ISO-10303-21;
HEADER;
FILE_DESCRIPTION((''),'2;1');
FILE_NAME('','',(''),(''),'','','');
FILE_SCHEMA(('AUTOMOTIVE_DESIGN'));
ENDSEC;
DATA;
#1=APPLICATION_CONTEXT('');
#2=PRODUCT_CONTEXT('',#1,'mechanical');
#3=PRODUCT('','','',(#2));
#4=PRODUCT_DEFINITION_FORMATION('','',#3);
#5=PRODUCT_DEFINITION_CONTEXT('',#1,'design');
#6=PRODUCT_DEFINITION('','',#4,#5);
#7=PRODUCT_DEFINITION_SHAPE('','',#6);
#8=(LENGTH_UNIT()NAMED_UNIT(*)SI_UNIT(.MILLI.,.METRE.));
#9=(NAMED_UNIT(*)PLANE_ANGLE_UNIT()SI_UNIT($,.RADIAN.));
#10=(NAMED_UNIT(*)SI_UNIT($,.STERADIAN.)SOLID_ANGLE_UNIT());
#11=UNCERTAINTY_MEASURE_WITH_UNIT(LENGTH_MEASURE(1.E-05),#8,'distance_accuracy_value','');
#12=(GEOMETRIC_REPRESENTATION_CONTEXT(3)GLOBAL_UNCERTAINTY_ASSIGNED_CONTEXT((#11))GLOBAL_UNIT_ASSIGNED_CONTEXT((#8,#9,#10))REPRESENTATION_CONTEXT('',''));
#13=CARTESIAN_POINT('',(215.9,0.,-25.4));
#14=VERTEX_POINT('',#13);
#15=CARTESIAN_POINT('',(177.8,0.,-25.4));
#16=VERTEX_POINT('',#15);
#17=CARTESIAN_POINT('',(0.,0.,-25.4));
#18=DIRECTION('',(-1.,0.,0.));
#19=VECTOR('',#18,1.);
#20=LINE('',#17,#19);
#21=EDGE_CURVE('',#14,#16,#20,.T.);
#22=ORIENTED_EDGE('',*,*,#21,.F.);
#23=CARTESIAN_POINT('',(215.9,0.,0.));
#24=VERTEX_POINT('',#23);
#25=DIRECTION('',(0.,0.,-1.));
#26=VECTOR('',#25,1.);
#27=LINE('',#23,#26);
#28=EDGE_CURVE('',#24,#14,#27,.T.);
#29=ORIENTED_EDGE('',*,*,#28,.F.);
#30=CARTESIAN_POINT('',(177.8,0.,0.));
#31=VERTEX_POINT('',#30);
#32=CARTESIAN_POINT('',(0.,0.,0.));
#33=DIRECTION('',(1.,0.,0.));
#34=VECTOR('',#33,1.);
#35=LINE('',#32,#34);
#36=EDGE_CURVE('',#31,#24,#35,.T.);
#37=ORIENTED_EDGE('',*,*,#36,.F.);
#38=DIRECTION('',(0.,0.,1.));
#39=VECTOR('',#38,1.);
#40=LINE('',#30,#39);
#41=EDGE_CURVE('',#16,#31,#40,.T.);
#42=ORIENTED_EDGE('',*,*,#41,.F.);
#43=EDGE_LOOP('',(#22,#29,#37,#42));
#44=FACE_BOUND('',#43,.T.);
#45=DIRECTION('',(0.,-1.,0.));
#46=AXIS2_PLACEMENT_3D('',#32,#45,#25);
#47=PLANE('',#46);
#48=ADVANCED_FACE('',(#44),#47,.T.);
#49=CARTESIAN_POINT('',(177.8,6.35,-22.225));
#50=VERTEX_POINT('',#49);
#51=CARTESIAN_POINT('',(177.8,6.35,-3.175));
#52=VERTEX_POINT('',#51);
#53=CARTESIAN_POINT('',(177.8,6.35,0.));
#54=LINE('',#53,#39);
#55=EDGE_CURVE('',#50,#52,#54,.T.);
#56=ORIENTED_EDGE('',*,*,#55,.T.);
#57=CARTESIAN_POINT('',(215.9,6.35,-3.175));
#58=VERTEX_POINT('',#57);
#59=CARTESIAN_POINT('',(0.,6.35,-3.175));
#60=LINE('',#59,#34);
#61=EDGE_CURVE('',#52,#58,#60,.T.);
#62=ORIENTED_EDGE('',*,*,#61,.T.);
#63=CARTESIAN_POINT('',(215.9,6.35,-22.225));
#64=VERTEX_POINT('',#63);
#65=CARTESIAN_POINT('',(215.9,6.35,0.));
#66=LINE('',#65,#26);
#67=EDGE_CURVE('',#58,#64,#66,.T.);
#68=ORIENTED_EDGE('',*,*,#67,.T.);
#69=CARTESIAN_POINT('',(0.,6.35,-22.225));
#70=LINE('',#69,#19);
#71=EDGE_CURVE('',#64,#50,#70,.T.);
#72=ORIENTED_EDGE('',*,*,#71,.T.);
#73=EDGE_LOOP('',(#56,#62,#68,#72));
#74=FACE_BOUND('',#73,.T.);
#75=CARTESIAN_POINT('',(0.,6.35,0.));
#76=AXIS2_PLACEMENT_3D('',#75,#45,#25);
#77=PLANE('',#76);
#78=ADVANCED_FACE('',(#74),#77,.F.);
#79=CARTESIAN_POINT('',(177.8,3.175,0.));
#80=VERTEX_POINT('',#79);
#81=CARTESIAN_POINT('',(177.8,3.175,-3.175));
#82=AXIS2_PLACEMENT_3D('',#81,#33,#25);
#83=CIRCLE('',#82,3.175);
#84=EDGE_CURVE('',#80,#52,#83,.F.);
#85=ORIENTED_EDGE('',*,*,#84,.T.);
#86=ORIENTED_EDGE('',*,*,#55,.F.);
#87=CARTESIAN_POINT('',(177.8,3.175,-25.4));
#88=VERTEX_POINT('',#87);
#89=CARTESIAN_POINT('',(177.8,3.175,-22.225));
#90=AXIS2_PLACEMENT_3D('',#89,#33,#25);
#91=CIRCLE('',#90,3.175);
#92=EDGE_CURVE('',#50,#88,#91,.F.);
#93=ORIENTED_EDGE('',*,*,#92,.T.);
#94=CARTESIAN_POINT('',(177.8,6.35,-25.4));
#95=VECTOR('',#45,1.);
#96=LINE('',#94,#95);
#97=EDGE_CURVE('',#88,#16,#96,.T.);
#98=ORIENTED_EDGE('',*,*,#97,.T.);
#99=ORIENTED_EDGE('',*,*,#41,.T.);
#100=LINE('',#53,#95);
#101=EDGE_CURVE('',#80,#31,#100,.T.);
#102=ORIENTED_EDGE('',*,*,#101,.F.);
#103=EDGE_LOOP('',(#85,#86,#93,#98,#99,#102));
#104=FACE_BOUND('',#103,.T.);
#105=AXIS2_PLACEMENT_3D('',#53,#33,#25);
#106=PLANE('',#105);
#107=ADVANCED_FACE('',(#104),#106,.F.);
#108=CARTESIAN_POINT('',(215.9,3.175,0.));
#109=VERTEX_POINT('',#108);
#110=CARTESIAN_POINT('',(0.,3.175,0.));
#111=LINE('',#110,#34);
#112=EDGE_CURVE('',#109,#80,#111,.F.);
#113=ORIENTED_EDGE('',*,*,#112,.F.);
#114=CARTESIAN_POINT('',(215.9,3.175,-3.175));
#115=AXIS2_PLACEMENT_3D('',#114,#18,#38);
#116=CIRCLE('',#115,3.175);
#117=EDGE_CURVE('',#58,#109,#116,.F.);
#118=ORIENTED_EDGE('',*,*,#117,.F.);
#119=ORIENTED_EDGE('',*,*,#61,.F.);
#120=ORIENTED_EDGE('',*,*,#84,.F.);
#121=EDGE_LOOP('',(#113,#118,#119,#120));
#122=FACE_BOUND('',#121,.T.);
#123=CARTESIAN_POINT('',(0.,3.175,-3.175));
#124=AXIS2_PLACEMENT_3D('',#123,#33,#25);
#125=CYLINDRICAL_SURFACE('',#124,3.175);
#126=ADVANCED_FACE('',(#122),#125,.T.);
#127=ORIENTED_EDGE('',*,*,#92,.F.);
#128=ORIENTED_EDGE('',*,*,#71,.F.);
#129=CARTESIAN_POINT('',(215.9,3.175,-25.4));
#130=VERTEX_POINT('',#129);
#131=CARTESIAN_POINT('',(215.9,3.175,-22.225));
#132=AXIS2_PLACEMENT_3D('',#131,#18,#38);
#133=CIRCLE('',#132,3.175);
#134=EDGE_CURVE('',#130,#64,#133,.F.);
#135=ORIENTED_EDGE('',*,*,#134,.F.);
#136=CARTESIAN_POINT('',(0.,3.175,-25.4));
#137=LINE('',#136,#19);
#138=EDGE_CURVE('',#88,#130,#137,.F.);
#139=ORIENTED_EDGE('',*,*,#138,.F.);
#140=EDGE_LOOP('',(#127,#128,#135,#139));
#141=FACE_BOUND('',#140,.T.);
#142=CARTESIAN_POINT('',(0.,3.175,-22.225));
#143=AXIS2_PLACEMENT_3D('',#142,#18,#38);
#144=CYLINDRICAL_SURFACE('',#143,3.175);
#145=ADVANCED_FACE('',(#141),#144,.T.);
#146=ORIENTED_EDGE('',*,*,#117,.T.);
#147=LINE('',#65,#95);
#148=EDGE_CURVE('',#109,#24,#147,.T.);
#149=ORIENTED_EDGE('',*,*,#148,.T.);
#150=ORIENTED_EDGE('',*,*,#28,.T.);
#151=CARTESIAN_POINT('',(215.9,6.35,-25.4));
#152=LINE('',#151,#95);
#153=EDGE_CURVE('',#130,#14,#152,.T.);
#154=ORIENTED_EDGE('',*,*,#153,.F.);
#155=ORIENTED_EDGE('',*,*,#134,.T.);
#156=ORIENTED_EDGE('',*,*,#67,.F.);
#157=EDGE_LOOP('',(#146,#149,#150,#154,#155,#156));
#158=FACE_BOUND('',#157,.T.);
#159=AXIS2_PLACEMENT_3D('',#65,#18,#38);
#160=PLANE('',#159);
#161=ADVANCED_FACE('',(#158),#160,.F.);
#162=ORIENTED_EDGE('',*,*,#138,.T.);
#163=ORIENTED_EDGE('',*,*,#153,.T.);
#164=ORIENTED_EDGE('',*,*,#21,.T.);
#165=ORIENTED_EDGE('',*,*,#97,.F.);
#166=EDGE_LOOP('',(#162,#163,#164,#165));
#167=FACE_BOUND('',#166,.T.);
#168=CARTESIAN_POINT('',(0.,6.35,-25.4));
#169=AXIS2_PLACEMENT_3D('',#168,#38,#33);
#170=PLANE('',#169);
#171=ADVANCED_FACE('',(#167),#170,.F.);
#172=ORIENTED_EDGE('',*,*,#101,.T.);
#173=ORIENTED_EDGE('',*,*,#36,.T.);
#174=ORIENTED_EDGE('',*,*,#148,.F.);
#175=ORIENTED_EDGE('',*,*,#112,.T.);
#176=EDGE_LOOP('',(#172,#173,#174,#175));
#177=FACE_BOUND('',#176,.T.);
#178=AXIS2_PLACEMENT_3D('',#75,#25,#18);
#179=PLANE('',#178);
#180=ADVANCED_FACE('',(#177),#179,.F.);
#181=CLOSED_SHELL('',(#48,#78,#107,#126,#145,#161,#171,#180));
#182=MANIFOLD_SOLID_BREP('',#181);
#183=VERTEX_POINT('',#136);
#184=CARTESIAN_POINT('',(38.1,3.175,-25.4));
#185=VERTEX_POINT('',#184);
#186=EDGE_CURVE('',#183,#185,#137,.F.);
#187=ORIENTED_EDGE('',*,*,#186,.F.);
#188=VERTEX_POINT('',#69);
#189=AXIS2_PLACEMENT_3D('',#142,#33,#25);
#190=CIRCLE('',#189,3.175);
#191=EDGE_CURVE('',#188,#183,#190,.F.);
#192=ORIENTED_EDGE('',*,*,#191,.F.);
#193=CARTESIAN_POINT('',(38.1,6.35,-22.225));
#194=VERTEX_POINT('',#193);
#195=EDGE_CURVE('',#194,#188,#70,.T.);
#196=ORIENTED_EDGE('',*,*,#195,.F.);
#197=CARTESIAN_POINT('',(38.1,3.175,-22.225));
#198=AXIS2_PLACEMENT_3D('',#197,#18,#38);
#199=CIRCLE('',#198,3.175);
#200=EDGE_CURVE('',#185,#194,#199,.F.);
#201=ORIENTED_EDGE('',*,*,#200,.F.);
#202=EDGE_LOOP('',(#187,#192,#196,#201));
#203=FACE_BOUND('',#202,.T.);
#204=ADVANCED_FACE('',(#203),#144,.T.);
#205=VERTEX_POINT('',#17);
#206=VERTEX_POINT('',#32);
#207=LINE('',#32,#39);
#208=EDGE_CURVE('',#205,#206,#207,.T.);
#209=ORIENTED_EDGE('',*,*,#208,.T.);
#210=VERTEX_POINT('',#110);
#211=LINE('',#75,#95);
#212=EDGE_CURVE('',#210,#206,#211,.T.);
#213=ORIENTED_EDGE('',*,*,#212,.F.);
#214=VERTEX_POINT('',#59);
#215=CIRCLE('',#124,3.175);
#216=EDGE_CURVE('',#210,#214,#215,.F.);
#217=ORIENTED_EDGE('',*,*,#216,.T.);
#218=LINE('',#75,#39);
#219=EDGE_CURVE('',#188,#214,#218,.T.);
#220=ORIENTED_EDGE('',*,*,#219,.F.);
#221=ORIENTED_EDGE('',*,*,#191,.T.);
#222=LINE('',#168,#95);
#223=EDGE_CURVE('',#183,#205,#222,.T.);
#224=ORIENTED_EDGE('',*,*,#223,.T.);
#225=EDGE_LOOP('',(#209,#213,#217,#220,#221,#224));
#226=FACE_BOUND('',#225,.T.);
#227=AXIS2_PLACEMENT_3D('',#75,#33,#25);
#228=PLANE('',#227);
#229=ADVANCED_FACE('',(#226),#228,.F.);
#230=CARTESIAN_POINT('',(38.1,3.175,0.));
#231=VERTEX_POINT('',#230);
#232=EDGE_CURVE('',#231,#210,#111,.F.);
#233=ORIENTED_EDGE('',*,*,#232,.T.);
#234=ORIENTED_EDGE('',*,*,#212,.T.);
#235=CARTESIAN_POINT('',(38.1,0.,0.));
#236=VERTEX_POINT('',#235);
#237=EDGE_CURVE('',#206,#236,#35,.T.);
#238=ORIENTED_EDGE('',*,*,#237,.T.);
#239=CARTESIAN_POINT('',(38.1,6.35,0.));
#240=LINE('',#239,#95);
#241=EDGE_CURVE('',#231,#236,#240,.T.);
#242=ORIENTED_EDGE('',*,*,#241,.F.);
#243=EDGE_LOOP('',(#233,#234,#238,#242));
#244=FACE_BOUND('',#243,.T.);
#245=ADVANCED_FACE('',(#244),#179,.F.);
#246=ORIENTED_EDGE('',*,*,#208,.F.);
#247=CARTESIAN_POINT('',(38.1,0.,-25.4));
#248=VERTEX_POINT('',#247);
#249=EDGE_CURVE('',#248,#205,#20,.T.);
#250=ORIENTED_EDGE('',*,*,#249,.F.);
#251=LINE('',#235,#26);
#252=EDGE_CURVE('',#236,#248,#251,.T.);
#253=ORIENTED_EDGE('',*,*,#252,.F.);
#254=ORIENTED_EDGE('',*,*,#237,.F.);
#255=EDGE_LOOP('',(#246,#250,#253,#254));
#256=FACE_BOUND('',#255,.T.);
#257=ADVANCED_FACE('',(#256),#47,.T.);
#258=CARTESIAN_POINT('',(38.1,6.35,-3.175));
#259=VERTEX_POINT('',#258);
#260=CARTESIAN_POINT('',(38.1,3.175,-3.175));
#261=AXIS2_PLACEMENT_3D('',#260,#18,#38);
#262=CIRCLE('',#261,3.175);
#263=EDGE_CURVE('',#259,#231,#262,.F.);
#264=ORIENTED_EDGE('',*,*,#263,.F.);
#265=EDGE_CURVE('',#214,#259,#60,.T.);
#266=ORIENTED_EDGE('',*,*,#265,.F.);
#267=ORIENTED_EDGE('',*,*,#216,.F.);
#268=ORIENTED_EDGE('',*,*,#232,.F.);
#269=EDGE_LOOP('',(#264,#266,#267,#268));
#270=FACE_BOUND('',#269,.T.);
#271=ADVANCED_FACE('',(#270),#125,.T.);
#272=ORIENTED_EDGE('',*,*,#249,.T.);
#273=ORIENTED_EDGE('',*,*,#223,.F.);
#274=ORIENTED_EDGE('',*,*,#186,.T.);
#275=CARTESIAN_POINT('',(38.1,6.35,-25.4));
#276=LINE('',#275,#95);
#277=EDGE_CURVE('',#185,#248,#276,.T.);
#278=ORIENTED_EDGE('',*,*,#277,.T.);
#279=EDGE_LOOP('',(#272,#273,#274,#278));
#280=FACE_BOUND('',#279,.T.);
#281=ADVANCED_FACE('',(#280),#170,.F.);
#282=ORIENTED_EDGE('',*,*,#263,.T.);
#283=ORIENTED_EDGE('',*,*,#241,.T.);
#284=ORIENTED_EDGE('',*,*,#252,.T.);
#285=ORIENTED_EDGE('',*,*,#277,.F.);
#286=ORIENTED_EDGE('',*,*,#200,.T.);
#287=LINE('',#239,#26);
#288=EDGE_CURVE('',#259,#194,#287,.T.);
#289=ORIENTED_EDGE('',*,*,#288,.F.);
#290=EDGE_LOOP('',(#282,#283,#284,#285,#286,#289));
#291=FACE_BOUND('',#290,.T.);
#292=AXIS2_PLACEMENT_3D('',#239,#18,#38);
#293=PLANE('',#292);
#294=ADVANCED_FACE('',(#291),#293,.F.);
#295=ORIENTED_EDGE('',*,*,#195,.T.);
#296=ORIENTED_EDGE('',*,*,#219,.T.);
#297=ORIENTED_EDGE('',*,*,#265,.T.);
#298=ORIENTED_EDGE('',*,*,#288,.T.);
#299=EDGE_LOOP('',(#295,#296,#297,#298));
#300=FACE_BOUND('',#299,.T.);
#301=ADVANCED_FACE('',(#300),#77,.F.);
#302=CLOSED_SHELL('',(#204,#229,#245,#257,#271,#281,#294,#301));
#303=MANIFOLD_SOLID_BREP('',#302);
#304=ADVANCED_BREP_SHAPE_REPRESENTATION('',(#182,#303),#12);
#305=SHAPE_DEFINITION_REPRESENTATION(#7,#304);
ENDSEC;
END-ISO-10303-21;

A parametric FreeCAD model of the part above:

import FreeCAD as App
import Part
import Sketcher
from FreeCAD import Vector
Q = App.Units.Quantity


def edges_at(feature, points):
    """Names of the edges that pass closest to the given points."""
    edges = feature.Shape.Edges
    near = lambda p: min(range(len(edges)), key=lambda i: edges[i].distToShape(Part.Vertex(*p))[0])
    return sorted({f"Edge{near(p) + 1}" for p in points})


def add_polygon(sketch, points):
    """Adds a closed chain of lines whose ends are joined by coincident constraints."""
    first, n = sketch.GeometryCount, len(points)
    for a, b in zip(points, points[1:] + points[:1]):
        sketch.addGeometry(Part.LineSegment(App.Vector(*a, 0), App.Vector(*b, 0)), False)
    for i in range(n):
        sketch.addConstraint(Sketcher.Constraint("Coincident", first + i, 2, first + (i + 1) % n, 1))

doc = App.newDocument("Part")
body = doc.addObject("PartDesign::Body", "Body")
body.AllowCompound = True

# Sketch on XZ plane
sketch1 = body.newObject("Sketcher::SketchObject", "Sketch")
sketch1.AttachmentSupport = (doc.getObject("XZ_Plane"), [""])
sketch1.MapMode = "FlatFace"
add_polygon(sketch1, [(0, -25), (0, 0), (216, 0), (216, -25)])  # lines 0-3
sketch1.addConstraint([
    Sketcher.Constraint("Vertical", 0),
    Sketcher.Constraint("Horizontal", 1),
    Sketcher.Constraint("Vertical", 2),
    Sketcher.Constraint("Horizontal", 3),
    Sketcher.Constraint("Coincident", 0, 2, -1, 1),
    Sketcher.Constraint("DistanceY", 0, 1, 0, 2, Q("1 in")),
    Sketcher.Constraint("DistanceX", 1, 1, 1, 2, Q("8.5 in")),
])
pad1 = body.newObject("PartDesign::Pad", "Pad")
pad1.Profile = sketch1
pad1.Length = Q("0.25 in")
pad1.Reversed = True
doc.recompute()

fillet = body.newObject("PartDesign::Fillet", "Fillet")
fillet.Base = (pad1, edges_at(pad1, [(107.95, 6.35, -25.4), (107.95, 6.35, 0)]))
fillet.Radius = Q("0.125 in")

# Sketch on XZ plane
sketch2 = body.newObject("Sketcher::SketchObject", "Sketch001")
sketch2.AttachmentSupport = (doc.getObject("XZ_Plane"), [""])
sketch2.MapMode = "FlatFace"
add_polygon(sketch2, [(38, 0), (38, -25), (178, -25), (178, 0)])  # lines 0-3
sketch2.addConstraint([
    Sketcher.Constraint("Vertical", 0),
    Sketcher.Constraint("Horizontal", 1),
    Sketcher.Constraint("Vertical", 2),
    Sketcher.Constraint("Horizontal", 3),
    Sketcher.Constraint("PointOnObject", 2, 2, -1),
    Sketcher.Constraint("DistanceY", 0, 2, 0, 1, Q("1 in")),
    Sketcher.Constraint("DistanceX", 1, 1, 1, 2, Q("5.5 in")),
    Sketcher.Constraint("DistanceX", -1, 1, 1, 2, Q("7 in")),
])
pocket1 = body.newObject("PartDesign::Pocket", "Pocket")
pocket1.Profile = sketch2
pocket1.Type = "ThroughAll"

doc.recompute()
